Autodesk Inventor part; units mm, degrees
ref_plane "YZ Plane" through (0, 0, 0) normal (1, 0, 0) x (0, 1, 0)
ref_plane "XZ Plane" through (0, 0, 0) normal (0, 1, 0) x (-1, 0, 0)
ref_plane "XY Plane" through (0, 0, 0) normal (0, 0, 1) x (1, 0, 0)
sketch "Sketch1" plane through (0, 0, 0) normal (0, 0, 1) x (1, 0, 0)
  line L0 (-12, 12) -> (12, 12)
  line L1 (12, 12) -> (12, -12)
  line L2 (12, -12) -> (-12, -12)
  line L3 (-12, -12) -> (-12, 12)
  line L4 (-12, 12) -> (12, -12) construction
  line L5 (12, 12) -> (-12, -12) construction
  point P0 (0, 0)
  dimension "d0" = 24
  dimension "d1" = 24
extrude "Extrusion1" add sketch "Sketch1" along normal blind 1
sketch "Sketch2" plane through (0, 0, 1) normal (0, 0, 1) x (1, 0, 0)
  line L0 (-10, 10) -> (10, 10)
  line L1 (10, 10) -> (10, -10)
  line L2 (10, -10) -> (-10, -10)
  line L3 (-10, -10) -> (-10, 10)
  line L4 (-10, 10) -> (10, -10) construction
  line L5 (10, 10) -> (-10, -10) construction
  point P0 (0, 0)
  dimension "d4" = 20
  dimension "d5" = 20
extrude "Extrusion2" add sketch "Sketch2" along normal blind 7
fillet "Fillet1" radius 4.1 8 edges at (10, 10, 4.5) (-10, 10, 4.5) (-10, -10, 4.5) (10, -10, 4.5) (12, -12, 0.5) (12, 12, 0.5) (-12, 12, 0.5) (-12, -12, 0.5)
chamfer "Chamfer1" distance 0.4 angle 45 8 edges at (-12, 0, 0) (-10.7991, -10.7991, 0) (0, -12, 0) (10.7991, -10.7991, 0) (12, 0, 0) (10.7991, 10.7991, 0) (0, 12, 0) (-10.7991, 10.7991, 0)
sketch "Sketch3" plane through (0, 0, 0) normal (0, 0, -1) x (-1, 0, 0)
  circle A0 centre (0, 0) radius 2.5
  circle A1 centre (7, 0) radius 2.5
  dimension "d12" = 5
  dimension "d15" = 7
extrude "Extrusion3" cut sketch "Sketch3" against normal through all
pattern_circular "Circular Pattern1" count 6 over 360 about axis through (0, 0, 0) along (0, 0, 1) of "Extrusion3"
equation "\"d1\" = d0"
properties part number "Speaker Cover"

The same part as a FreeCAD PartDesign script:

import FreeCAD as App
import Part
import Sketcher
from FreeCAD import Vector
Q = App.Units.Quantity


def edges_at(feature, points):
    """Names of the edges that pass closest to the given points."""
    edges = feature.Shape.Edges
    near = lambda p: min(range(len(edges)), key=lambda i: edges[i].distToShape(Part.Vertex(*p))[0])
    return sorted({f"Edge{near(p) + 1}" for p in points})


def add_polygon(sketch, points):
    """Adds a closed chain of lines whose ends are joined by coincident constraints."""
    first, n = sketch.GeometryCount, len(points)
    for a, b in zip(points, points[1:] + points[:1]):
        sketch.addGeometry(Part.LineSegment(App.Vector(*a, 0), App.Vector(*b, 0)), False)
    for i in range(n):
        sketch.addConstraint(Sketcher.Constraint("Coincident", first + i, 2, first + (i + 1) % n, 1))

doc = App.newDocument("Part")
body = doc.addObject("PartDesign::Body", "Body")

# Sketch on XY plane
sketch1 = body.newObject("Sketcher::SketchObject", "Sketch")
sketch1.AttachmentSupport = (doc.getObject("XY_Plane"), [""])
sketch1.MapMode = "FlatFace"
add_polygon(sketch1, [(12, 12), (-12, 12), (-12, -12), (12, -12)])  # lines 0-3
sketch1.addConstraint(Sketcher.Constraint("Horizontal", 0))
sketch1.addConstraint(Sketcher.Constraint("Vertical", 1))
sketch1.addConstraint(Sketcher.Constraint("Horizontal", 2))
sketch1.addConstraint(Sketcher.Constraint("Vertical", 3))
sketch1.addConstraint(Sketcher.Constraint("Symmetric", 0, 2, 2, 2, -1, 1))
sketch1.addConstraint(Sketcher.Constraint("Equal", 2, 1))
sketch1.addConstraint(Sketcher.Constraint("DistanceX", 0, 2, 0, 1, Q("24 mm")))
pad1 = body.newObject("PartDesign::Pad", "Pad")
pad1.Profile = sketch1
pad1.Length = 1

# Sketch on XY plane
sketch2 = body.newObject("Sketcher::SketchObject", "Sketch001")
sketch2.AttachmentSupport = (doc.getObject("XY_Plane"), [""])
sketch2.MapMode = "FlatFace"
sketch2.AttachmentOffset = App.Placement(Vector(0, 0, 1), App.Rotation())
add_polygon(sketch2, [(10, 10), (-10, 10), (-10, -10), (10, -10)])  # lines 0-3
sketch2.addConstraint(Sketcher.Constraint("Horizontal", 0))
sketch2.addConstraint(Sketcher.Constraint("Vertical", 1))
sketch2.addConstraint(Sketcher.Constraint("Horizontal", 2))
sketch2.addConstraint(Sketcher.Constraint("Vertical", 3))
sketch2.addConstraint(Sketcher.Constraint("Symmetric", 0, 2, 2, 2, -1, 1))
sketch2.addConstraint(Sketcher.Constraint("Equal", 2, 1))
sketch2.addConstraint(Sketcher.Constraint("DistanceX", 0, 2, 0, 1, Q("20 mm")))
pad2 = body.newObject("PartDesign::Pad", "Pad001")
pad2.Profile = sketch2
pad2.Length = 7
doc.recompute()

fillet = body.newObject("PartDesign::Fillet", "Fillet")
fillet.Base = (pad2, edges_at(pad2, [
    (10, 10, 4.5),
    (-10, 10, 4.5),
    (-10, -10, 4.5),
    (10, -10, 4.5),
    (12, -12, 0.5),
    (12, 12, 0.5),
    (-12, 12, 0.5),
    (-12, -12, 0.5),
]))
fillet.Radius = 4.1
doc.recompute()

chamfer = body.newObject("PartDesign::Chamfer", "Chamfer")
chamfer.Base = (fillet, edges_at(fillet, [
    (-12, 0, 0),
    (-10.799, -10.799, 0),
    (0, -12, 0),
    (10.799, -10.799, 0),
    (12, 0, 0),
    (10.799, 10.799, 0),
    (0, 12, 0),
    (-10.799, 10.799, 0),
]))
chamfer.Size = 0.4

# Sketch on XY plane
sketch3 = body.newObject("Sketcher::SketchObject", "Sketch002")
sketch3.AttachmentSupport = (doc.getObject("XY_Plane"), [""])
sketch3.MapMode = "FlatFace"
sketch3.addGeometry(Part.Circle(Vector(0, 0, 0), Vector(0, 0, 1), 2.5), False)
sketch3.addGeometry(Part.Circle(Vector(-7, 0, 0), Vector(0, 0, 1), 2.5), False)
sketch3.addConstraint(Sketcher.Constraint("Coincident", 0, 3, -1, 1))
sketch3.addConstraint(Sketcher.Constraint("Equal", 0, 1))
sketch3.addConstraint(Sketcher.Constraint("PointOnObject", 1, 3, -1))
sketch3.addConstraint(Sketcher.Constraint("Diameter", 0, Q("5 mm")))
sketch3.addConstraint(Sketcher.Constraint("DistanceX", 1, 3, -1, 1, Q("7 mm")))
pocket1 = body.newObject("PartDesign::Pocket", "Pocket")
pocket1.Profile = sketch3
pocket1.Type = "ThroughAll"
pocket1.Reversed = True
doc.recompute()

polarpattern = body.newObject("PartDesign::PolarPattern", "PolarPattern")
polarpattern.Originals = [pocket1]
polarpattern.Axis = (doc.getObject("Z_Axis"), [""])
polarpattern.Angle = 360
polarpattern.Occurrences = 6
body.Tip = polarpattern

doc.recompute()
